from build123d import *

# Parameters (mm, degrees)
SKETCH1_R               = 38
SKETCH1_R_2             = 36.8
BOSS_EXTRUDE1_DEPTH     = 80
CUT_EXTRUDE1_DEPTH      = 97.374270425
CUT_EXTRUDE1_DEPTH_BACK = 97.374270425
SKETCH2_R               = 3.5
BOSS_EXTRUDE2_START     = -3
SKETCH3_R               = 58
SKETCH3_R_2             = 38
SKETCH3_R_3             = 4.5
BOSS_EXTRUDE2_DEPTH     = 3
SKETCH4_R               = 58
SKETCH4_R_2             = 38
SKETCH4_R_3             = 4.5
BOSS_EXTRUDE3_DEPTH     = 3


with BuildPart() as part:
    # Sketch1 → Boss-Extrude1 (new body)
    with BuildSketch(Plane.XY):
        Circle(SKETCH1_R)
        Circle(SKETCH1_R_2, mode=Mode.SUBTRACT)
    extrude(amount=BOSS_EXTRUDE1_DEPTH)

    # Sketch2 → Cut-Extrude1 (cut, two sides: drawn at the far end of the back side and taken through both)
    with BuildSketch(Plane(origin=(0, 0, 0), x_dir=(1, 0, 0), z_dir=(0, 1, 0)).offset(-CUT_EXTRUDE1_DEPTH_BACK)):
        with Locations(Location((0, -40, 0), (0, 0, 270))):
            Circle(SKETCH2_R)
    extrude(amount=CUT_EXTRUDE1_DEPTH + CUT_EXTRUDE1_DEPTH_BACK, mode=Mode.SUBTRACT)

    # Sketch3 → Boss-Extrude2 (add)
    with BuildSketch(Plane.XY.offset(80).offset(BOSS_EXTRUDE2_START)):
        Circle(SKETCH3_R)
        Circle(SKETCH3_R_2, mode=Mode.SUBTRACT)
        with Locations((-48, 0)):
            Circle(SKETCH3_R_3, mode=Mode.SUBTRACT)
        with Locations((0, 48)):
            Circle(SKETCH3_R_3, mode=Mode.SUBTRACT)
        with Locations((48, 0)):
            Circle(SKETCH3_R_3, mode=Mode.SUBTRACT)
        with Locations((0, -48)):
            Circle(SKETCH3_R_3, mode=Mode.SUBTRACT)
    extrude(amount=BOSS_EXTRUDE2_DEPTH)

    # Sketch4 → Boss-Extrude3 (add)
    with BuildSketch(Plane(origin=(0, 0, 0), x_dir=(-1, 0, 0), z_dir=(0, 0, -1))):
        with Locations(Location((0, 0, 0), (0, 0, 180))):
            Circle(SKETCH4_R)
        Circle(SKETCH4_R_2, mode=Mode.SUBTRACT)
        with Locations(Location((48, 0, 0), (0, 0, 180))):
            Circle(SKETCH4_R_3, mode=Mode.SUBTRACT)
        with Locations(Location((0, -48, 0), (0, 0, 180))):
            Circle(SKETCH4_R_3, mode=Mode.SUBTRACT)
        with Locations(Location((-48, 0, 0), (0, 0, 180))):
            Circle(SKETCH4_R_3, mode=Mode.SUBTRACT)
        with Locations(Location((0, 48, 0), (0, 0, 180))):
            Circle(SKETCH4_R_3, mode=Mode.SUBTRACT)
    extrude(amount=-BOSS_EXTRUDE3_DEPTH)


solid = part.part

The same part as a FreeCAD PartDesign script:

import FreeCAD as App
import Part
import Sketcher

doc = App.newDocument("Part")
params = doc.addObject("Spreadsheet::Sheet", "Params")
for row, (alias, value) in enumerate([
    ("sketch1_diameter", "76 mm"),
    ("sketch1_diameter2", "73.6 mm"),
    ("pad1_length", "80 mm"),
    ("sketch2_diameter", "7 mm"),
    ("sketch3_diameter", "116 mm"),
    ("sketch3_diameter2", "9 mm"),
    ("sketch3_diameter3", "76 mm"),
    ("pad2_length", "3 mm"),
    ("sketch4_diameter", "116 mm"),
    ("sketch4_diameter2", "9 mm"),
    ("sketch4_diameter3", "76 mm"),
    ("pad3_length", "3 mm"),
], start=1):
    params.set(f"A{row}", alias)
    params.set(f"B{row}", "=" + value)
    params.setAlias(f"B{row}", alias)

body = doc.addObject("PartDesign::Body", "Body")

# Sketch on XY plane
sketch1 = body.newObject("Sketcher::SketchObject", "Sketch")
sketch1.AttachmentSupport = (doc.getObject("XY_Plane"), [""])
sketch1.MapMode = "FlatFace"
sketch1.addGeometry([
    Part.Circle(App.Vector(0, 0, 0), App.Vector(0, 0, 1), 38),
    Part.Circle(App.Vector(0, 0, 0), App.Vector(0, 0, 1), 37),
], False)
sketch1.addConstraint([
    Sketcher.Constraint("Coincident", 0, 3, -1, 1),
    Sketcher.Constraint("Coincident", 1, 3, -1, 1),
    Sketcher.Constraint("Diameter", 0, 76.0),
    Sketcher.Constraint("Diameter", 1, 73.6),
])
sketch1.setExpression("Constraints[2]", "Params.sketch1_diameter")
sketch1.setExpression("Constraints[3]", "Params.sketch1_diameter2")
pad1 = body.newObject("PartDesign::Pad", "Pad")
pad1.Profile = sketch1
pad1.setExpression("Length", "Params.pad1_length")

# Sketch on XZ plane
sketch2 = body.newObject("Sketcher::SketchObject", "Sketch001")
sketch2.AttachmentSupport = (doc.getObject("XZ_Plane"), [""])
sketch2.MapMode = "FlatFace"
sketch2.addGeometry(Part.Circle(App.Vector(0, 40, 0), App.Vector(0, 0, 1), 3.5), False)
sketch2.addConstraint([
    Sketcher.Constraint("PointOnObject", 0, 3, -2),
    Sketcher.Constraint("Diameter", 0, 7.0),
    Sketcher.Constraint("DistanceY", -1, 1, 0, 3, 40.0),
])
sketch2.setExpression("Constraints[1]", "Params.sketch2_diameter")
pocket1 = body.newObject("PartDesign::Pocket", "Pocket")
pocket1.Profile = sketch2
pocket1.Type = "ThroughAll"
pocket1.Midplane = True

# Sketch on XY plane
sketch3 = body.newObject("Sketcher::SketchObject", "Sketch002")
sketch3.AttachmentSupport = (doc.getObject("XY_Plane"), [""])
sketch3.MapMode = "FlatFace"
sketch3.AttachmentOffset = App.Placement(App.Vector(0, 0, 77), App.Rotation())
sketch3.addGeometry([
    Part.Circle(App.Vector(0, 0, 0), App.Vector(0, 0, 1), 58),  # 0
    Part.Circle(App.Vector(0, -48, 0), App.Vector(0, 0, 1), 4.5),  # 1
    Part.Circle(App.Vector(-48, 0, 0), App.Vector(0, 0, 1), 4.5),  # 2
    Part.Circle(App.Vector(0, 0, 0), App.Vector(0, 0, 1), 38),  # 3
    Part.Circle(App.Vector(48, 0, 0), App.Vector(0, 0, 1), 4.5),  # 4
    Part.Circle(App.Vector(0, 48, 0), App.Vector(0, 0, 1), 4.5),  # 5
], False)
sketch3.addConstraint([
    Sketcher.Constraint("Coincident", 0, 3, -1, 1),
    Sketcher.Constraint("Coincident", 3, 3, -1, 1),
    Sketcher.Constraint("Equal", 1, 2),
    Sketcher.Constraint("Equal", 2, 4),
    Sketcher.Constraint("Equal", 4, 5),
    Sketcher.Constraint("Symmetric", 2, 3, 4, 3, -1, 1),
    Sketcher.Constraint("Symmetric", 1, 3, 5, 3, -1, 1),
    Sketcher.Constraint("PointOnObject", 1, 3, -2),
    Sketcher.Constraint("PointOnObject", 2, 3, -1),
    Sketcher.Constraint("Diameter", 0, 116.0),
    Sketcher.Constraint("Diameter", 1, 9.0),
    Sketcher.Constraint("Diameter", 3, 76.0),
    Sketcher.Constraint("DistanceY", 1, 3, -1, 1, 48.0),
    Sketcher.Constraint("DistanceX", 2, 3, -1, 1, 48.0),
])
sketch3.setExpression("Constraints[9]", "Params.sketch3_diameter")
sketch3.setExpression("Constraints[10]", "Params.sketch3_diameter2")
sketch3.setExpression("Constraints[11]", "Params.sketch3_diameter3")
pad2 = body.newObject("PartDesign::Pad", "Pad001")
pad2.Profile = sketch3
pad2.setExpression("Length", "Params.pad2_length")

# Sketch on XY plane
sketch4 = body.newObject("Sketcher::SketchObject", "Sketch003")
sketch4.AttachmentSupport = (doc.getObject("XY_Plane"), [""])
sketch4.MapMode = "FlatFace"
sketch4.addGeometry([
    Part.Circle(App.Vector(0, 0, 0), App.Vector(0, 0, 1), 58),  # 0
    Part.Circle(App.Vector(0, 48, 0), App.Vector(0, 0, 1), 4.5),  # 1
    Part.Circle(App.Vector(-48, 0, 0), App.Vector(0, 0, 1), 4.5),  # 2
    Part.Circle(App.Vector(0, 0, 0), App.Vector(0, 0, 1), 38),  # 3
    Part.Circle(App.Vector(48, 0, 0), App.Vector(0, 0, 1), 4.5),  # 4
    Part.Circle(App.Vector(0, -48, 0), App.Vector(0, 0, 1), 4.5),  # 5
], False)
sketch4.addConstraint([
    Sketcher.Constraint("Coincident", 0, 3, -1, 1),
    Sketcher.Constraint("Coincident", 3, 3, -1, 1),
    Sketcher.Constraint("Equal", 1, 2),
    Sketcher.Constraint("Equal", 2, 4),
    Sketcher.Constraint("Equal", 4, 5),
    Sketcher.Constraint("Symmetric", 2, 3, 4, 3, -1, 1),
    Sketcher.Constraint("Symmetric", 1, 3, 5, 3, -1, 1),
    Sketcher.Constraint("PointOnObject", 1, 3, -2),
    Sketcher.Constraint("PointOnObject", 2, 3, -1),
    Sketcher.Constraint("Diameter", 0, 116.0),
    Sketcher.Constraint("Diameter", 1, 9.0),
    Sketcher.Constraint("Diameter", 3, 76.0),
    Sketcher.Constraint("DistanceY", -1, 1, 1, 3, 48.0),
    Sketcher.Constraint("DistanceX", 2, 3, -1, 1, 48.0),
])
sketch4.setExpression("Constraints[9]", "Params.sketch4_diameter")
sketch4.setExpression("Constraints[10]", "Params.sketch4_diameter2")
sketch4.setExpression("Constraints[11]", "Params.sketch4_diameter3")
pad3 = body.newObject("PartDesign::Pad", "Pad002")
pad3.Profile = sketch4
pad3.setExpression("Length", "Params.pad3_length")

doc.recompute()
